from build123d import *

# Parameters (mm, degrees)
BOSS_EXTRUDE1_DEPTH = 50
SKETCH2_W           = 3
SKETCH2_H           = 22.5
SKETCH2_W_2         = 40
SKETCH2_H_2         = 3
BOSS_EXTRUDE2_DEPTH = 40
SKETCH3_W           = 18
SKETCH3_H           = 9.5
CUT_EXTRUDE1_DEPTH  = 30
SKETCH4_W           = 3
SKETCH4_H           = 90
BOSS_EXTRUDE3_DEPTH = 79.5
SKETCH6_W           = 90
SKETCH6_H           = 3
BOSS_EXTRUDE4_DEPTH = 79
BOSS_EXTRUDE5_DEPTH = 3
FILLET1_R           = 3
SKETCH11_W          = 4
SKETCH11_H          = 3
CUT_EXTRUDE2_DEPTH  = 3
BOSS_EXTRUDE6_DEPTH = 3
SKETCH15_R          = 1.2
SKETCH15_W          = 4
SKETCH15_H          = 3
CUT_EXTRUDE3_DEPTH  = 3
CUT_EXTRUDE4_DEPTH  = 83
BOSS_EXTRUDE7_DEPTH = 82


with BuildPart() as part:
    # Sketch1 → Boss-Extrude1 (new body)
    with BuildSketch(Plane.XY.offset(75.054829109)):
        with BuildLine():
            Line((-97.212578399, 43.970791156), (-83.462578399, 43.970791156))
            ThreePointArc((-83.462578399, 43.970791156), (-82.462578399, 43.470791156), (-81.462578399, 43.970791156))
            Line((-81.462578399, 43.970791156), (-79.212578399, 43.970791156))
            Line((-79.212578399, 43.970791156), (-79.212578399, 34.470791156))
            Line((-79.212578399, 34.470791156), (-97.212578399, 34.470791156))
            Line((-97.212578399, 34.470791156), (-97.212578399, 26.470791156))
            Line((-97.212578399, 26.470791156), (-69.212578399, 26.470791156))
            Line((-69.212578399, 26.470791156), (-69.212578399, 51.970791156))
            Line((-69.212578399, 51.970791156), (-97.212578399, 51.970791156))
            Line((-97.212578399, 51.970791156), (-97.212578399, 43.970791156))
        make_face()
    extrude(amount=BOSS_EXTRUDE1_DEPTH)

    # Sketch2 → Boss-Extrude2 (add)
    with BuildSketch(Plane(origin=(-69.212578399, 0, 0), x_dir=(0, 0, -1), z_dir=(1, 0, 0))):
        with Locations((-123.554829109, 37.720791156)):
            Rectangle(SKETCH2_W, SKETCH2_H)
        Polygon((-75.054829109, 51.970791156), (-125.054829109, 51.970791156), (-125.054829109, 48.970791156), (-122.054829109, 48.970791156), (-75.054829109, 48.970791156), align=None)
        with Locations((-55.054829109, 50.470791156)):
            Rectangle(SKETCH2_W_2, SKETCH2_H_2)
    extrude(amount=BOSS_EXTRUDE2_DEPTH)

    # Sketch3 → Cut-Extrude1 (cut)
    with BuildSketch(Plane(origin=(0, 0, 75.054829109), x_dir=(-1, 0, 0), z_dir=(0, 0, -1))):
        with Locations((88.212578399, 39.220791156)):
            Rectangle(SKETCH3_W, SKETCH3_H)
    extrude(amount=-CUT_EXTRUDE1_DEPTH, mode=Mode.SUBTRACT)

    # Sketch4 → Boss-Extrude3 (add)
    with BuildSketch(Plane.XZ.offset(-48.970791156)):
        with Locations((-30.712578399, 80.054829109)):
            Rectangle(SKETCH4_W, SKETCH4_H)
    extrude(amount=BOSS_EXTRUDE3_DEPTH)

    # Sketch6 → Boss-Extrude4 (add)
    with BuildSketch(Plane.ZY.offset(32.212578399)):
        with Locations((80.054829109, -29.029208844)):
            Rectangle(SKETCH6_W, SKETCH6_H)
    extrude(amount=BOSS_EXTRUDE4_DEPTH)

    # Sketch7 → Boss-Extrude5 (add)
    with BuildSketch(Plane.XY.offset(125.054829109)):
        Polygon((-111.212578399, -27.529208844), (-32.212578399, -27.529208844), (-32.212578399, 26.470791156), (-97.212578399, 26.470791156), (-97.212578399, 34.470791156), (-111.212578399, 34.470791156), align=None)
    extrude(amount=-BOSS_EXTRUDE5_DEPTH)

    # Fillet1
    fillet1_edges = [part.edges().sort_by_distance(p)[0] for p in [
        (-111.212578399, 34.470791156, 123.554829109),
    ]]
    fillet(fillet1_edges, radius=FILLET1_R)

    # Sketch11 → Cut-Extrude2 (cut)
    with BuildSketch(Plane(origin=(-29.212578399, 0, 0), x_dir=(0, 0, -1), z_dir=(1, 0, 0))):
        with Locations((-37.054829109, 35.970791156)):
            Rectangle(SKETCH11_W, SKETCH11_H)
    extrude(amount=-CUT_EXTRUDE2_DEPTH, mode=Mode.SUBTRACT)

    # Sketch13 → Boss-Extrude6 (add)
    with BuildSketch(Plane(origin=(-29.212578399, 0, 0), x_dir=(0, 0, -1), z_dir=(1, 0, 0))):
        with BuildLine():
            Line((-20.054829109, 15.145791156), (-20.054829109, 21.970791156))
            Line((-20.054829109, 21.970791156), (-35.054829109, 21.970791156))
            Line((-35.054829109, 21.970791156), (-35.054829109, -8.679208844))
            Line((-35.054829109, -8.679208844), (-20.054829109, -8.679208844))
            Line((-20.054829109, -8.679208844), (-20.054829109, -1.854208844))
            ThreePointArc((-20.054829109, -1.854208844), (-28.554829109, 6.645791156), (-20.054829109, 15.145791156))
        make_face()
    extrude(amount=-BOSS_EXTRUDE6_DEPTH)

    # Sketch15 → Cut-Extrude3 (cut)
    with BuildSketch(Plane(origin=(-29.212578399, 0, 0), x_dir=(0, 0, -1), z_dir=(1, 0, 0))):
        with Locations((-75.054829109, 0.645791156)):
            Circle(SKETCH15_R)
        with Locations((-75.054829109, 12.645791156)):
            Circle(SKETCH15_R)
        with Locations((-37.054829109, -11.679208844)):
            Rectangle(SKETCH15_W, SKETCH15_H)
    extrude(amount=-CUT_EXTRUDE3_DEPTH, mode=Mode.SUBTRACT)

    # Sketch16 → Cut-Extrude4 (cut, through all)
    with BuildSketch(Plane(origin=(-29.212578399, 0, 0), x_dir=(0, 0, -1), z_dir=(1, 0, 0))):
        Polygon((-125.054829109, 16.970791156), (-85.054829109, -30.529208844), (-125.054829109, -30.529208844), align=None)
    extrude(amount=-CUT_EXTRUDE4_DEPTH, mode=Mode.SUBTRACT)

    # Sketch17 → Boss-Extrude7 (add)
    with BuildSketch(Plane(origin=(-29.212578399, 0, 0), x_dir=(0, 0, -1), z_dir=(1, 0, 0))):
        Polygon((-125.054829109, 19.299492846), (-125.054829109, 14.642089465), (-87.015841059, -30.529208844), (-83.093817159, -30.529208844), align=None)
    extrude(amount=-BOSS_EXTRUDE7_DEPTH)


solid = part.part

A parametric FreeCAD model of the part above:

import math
import FreeCAD as App
import Part
import Sketcher
Q = App.Units.Quantity


def edges_at(feature, points):
    """Names of the edges that pass closest to the given points."""
    edges = feature.Shape.Edges
    near = lambda p: min(range(len(edges)), key=lambda i: edges[i].distToShape(Part.Vertex(*p))[0])
    return sorted({f"Edge{near(p) + 1}" for p in points})


def add_polygon(sketch, points):
    """Adds a closed chain of lines whose ends are joined by coincident constraints."""
    first, n = sketch.GeometryCount, len(points)
    for a, b in zip(points, points[1:] + points[:1]):
        sketch.addGeometry(Part.LineSegment(App.Vector(*a, 0), App.Vector(*b, 0)), False)
    for i in range(n):
        sketch.addConstraint(Sketcher.Constraint("Coincident", first + i, 2, first + (i + 1) % n, 1))

doc = App.newDocument("Part")
body = doc.addObject("PartDesign::Body", "Body")

# Sketch on XY plane
sketch1 = body.newObject("Sketcher::SketchObject", "Sketch")
sketch1.AttachmentSupport = (doc.getObject("XY_Plane"), [""])
sketch1.MapMode = "FlatFace"
sketch1.AttachmentOffset = App.Placement(App.Vector(0, 0, 75.054829), App.Rotation())
sketch1.addGeometry([
    Part.LineSegment(App.Vector(-97.2, 44, 0), App.Vector(-83.5, 44, 0)),  # 0
    Part.ArcOfCircle(Part.Circle(App.Vector(-82.5, 44.7, 0), App.Vector(0, 0, 1), 1.2), math.radians(-143), math.radians(-37)),  # 1
    Part.LineSegment(App.Vector(-81.5, 44, 0), App.Vector(-79.2, 44, 0)),  # 2
    Part.LineSegment(App.Vector(-79.2, 44, 0), App.Vector(-79.2, 34.5, 0)),  # 3
    Part.LineSegment(App.Vector(-79.2, 34.5, 0), App.Vector(-97.2, 34.5, 0)),  # 4
    Part.LineSegment(App.Vector(-97.2, 34.5, 0), App.Vector(-97.2, 26.5, 0)),  # 5
    Part.LineSegment(App.Vector(-97.2, 26.5, 0), App.Vector(-69.2, 26.5, 0)),  # 6
    Part.LineSegment(App.Vector(-69.2, 26.5, 0), App.Vector(-69.2, 52, 0)),  # 7
    Part.LineSegment(App.Vector(-69.2, 52, 0), App.Vector(-97.2, 52, 0)),  # 8
    Part.LineSegment(App.Vector(-97.2, 52, 0), App.Vector(-97.2, 44, 0)),  # 9
], False)
sketch1.addConstraint([
    Sketcher.Constraint("Coincident", 0, 2, 1, 1),
    Sketcher.Constraint("Coincident", 1, 2, 2, 1),
    Sketcher.Constraint("Coincident", 2, 2, 3, 1),
    Sketcher.Constraint("Coincident", 3, 2, 4, 1),
    Sketcher.Constraint("Coincident", 4, 2, 5, 1),
    Sketcher.Constraint("Coincident", 5, 2, 6, 1),
    Sketcher.Constraint("Coincident", 6, 2, 7, 1),
    Sketcher.Constraint("Coincident", 7, 2, 8, 1),
    Sketcher.Constraint("Coincident", 8, 2, 9, 1),
    Sketcher.Constraint("Coincident", 9, 2, 0, 1),
    Sketcher.Constraint("Horizontal", 0),
    Sketcher.Constraint("Horizontal", 2),
    Sketcher.Constraint("Vertical", 3),
    Sketcher.Constraint("Horizontal", 4),
    Sketcher.Constraint("Vertical", 5),
    Sketcher.Constraint("Horizontal", 6),
    Sketcher.Constraint("Vertical", 7),
    Sketcher.Constraint("Horizontal", 8),
    Sketcher.Constraint("Vertical", 9),
    Sketcher.Constraint("Horizontal", 0, 2, 1, 2),
    Sketcher.Constraint("Vertical", 5, 2, 8, 2),
    Sketcher.Constraint("Equal", 5, 9),
    Sketcher.Constraint("DistanceX", 4, 2, 4, 1, Q("18 mm")),
    Sketcher.Constraint("DistanceX", 6, 1, 6, 2, Q("28 mm")),
    Sketcher.Constraint("DistanceY", 5, 2, 5, 1, Q("8 mm")),
    Sketcher.Constraint("Radius", 1, Q("1.25 mm")),
    Sketcher.Constraint("DistanceY", 3, 2, 3, 1, Q("9.5 mm")),
    Sketcher.Constraint("DistanceX", 0, 2, 1, 3, Q("1 mm")),
    Sketcher.Constraint("DistanceX", 0, 1, 0, 2, Q("13.75 mm")),
    Sketcher.Constraint("DistanceX", 1, 3, -1, 1, Q("82.462578 mm")),
    Sketcher.Constraint("DistanceY", -1, 1, 1, 3, Q("44.720791 mm")),
])
pad1 = body.newObject("PartDesign::Pad", "Pad")
pad1.Profile = sketch1
pad1.Length = 50

# Sketch on YZ plane
sketch2 = body.newObject("Sketcher::SketchObject", "Sketch001")
sketch2.AttachmentSupport = (doc.getObject("YZ_Plane"), [""])
sketch2.MapMode = "FlatFace"
sketch2.AttachmentOffset = App.Placement(App.Vector(0, 0, -69.212578), App.Rotation())
add_polygon(sketch2, [(26.5, 125.1), (26.5, 122.1), (49, 122.1), (49, 35.1), (52, 35.1), (52, 125.1)])  # lines 0-5
sketch2.addConstraint([
    Sketcher.Constraint("Vertical", 0),
    Sketcher.Constraint("Horizontal", 1),
    Sketcher.Constraint("Vertical", 2),
    Sketcher.Constraint("Horizontal", 3),
    Sketcher.Constraint("Vertical", 4),
    Sketcher.Constraint("Horizontal", 5),
    Sketcher.Constraint("Equal", 3, 0),
    Sketcher.Constraint("DistanceX", 3, 1, 3, 2, Q("3 mm")),
    Sketcher.Constraint("DistanceY", 2, 2, 2, 1, Q("87 mm")),
    Sketcher.Constraint("DistanceX", 1, 1, 1, 2, Q("22.5 mm")),
    Sketcher.Constraint("DistanceX", -1, 1, 0, 2, Q("26.470791 mm")),
    Sketcher.Constraint("DistanceY", -1, 1, 0, 2, Q("122.054829 mm")),
])
pad2 = body.newObject("PartDesign::Pad", "Pad001")
pad2.Profile = sketch2
pad2.Length = 40

# Sketch on XY plane
sketch3 = body.newObject("Sketcher::SketchObject", "Sketch002")
sketch3.AttachmentSupport = (doc.getObject("XY_Plane"), [""])
sketch3.MapMode = "FlatFace"
sketch3.AttachmentOffset = App.Placement(App.Vector(0, 0, 75.054829), App.Rotation())
add_polygon(sketch3, [(-79, 44), (-79, 34), (-97, 34), (-97, 44)])  # lines 0-3
sketch3.addConstraint([
    Sketcher.Constraint("Vertical", 0),
    Sketcher.Constraint("Horizontal", 1),
    Sketcher.Constraint("Vertical", 2),
    Sketcher.Constraint("Horizontal", 3),
    Sketcher.Constraint("DistanceX", 1, 2, 1, 1, Q("18 mm")),
    Sketcher.Constraint("DistanceY", 0, 2, 0, 1, Q("9.5 mm")),
    Sketcher.Constraint("DistanceX", 0, 2, -1, 1, Q("79.212578 mm")),
    Sketcher.Constraint("DistanceY", -1, 1, 0, 2, Q("34.470791 mm")),
])
pocket1 = body.newObject("PartDesign::Pocket", "Pocket")
pocket1.Profile = sketch3
pocket1.Length = 30
pocket1.Reversed = True

# Sketch on XZ plane
sketch4 = body.newObject("Sketcher::SketchObject", "Sketch003")
sketch4.AttachmentSupport = (doc.getObject("XZ_Plane"), [""])
sketch4.MapMode = "FlatFace"
sketch4.AttachmentOffset = App.Placement(App.Vector(0, 0, -48.970791), App.Rotation())
add_polygon(sketch4, [(-32.2, 125.1), (-32.2, 35.1), (-29.2, 35.1), (-29.2, 125.1)])  # lines 0-3
sketch4.addConstraint([
    Sketcher.Constraint("Vertical", 0),
    Sketcher.Constraint("Horizontal", 1),
    Sketcher.Constraint("Vertical", 2),
    Sketcher.Constraint("Horizontal", 3),
    Sketcher.Constraint("DistanceX", 1, 1, 1, 2, Q("3 mm")),
    Sketcher.Constraint("DistanceY", 0, 2, 0, 1, Q("90 mm")),
    Sketcher.Constraint("DistanceX", 0, 2, -1, 1, Q("32.212578 mm")),
    Sketcher.Constraint("DistanceY", -1, 1, 0, 2, Q("35.054829 mm")),
])
pad3 = body.newObject("PartDesign::Pad", "Pad002")
pad3.Profile = sketch4
pad3.Length = 79.5

# Sketch on YZ plane
sketch5 = body.newObject("Sketcher::SketchObject", "Sketch004")
sketch5.AttachmentSupport = (doc.getObject("YZ_Plane"), [""])
sketch5.MapMode = "FlatFace"
sketch5.AttachmentOffset = App.Placement(App.Vector(0, 0, -32.212578), App.Rotation())
add_polygon(sketch5, [(-27.5, 35.1), (-30.5, 35.1), (-30.5, 125.1), (-27.5, 125.1)])  # lines 0-3
sketch5.addConstraint([
    Sketcher.Constraint("Horizontal", 0),
    Sketcher.Constraint("Vertical", 1),
    Sketcher.Constraint("Horizontal", 2),
    Sketcher.Constraint("Vertical", 3),
    Sketcher.Constraint("DistanceX", 0, 2, 0, 1, Q("3 mm")),
    Sketcher.Constraint("DistanceY", 1, 1, 1, 2, Q("90 mm")),
    Sketcher.Constraint("DistanceX", 0, 2, -1, 1, Q("30.529209 mm")),
    Sketcher.Constraint("DistanceY", -1, 1, 0, 2, Q("35.054829 mm")),
])
pad4 = body.newObject("PartDesign::Pad", "Pad003")
pad4.Profile = sketch5
pad4.Length = 79
pad4.Reversed = True

# Sketch on XY plane
sketch6 = body.newObject("Sketcher::SketchObject", "Sketch005")
sketch6.AttachmentSupport = (doc.getObject("XY_Plane"), [""])
sketch6.MapMode = "FlatFace"
sketch6.AttachmentOffset = App.Placement(App.Vector(0, 0, 125.054829), App.Rotation())
add_polygon(sketch6, [(-111, -28), (-32, -28), (-32, 26), (-97, 26), (-97, 34), (-111, 34)])  # lines 0-5
sketch6.addConstraint([
    Sketcher.Constraint("Horizontal", 0),
    Sketcher.Constraint("Vertical", 1),
    Sketcher.Constraint("Horizontal", 2),
    Sketcher.Constraint("Vertical", 3),
    Sketcher.Constraint("Horizontal", 4),
    Sketcher.Constraint("Vertical", 5),
    Sketcher.Constraint("DistanceX", 0, 1, 0, 2, Q("79 mm")),
    Sketcher.Constraint("DistanceX", 2, 2, 2, 1, Q("65 mm")),
    Sketcher.Constraint("DistanceY", 1, 1, 1, 2, Q("54 mm")),
    Sketcher.Constraint("DistanceY", 3, 1, 3, 2, Q("8 mm")),
    Sketcher.Constraint("DistanceX", 0, 2, -1, 1, Q("32.212578 mm")),
    Sketcher.Constraint("DistanceY", 0, 2, -1, 1, Q("27.529209 mm")),
])
pad5 = body.newObject("PartDesign::Pad", "Pad004")
pad5.Profile = sketch6
pad5.Length = 3
pad5.Reversed = True
doc.recompute()

fillet = body.newObject("PartDesign::Fillet", "Fillet")
fillet.Base = (pad5, edges_at(pad5, [(-111.213, 34.471, 123.555)]))
fillet.Radius = 3

# Sketch on YZ plane
sketch7 = body.newObject("Sketcher::SketchObject", "Sketch006")
sketch7.AttachmentSupport = (doc.getObject("YZ_Plane"), [""])
sketch7.MapMode = "FlatFace"
sketch7.AttachmentOffset = App.Placement(App.Vector(0, 0, -29.212578), App.Rotation())
add_polygon(sketch7, [(37.5, 39.1), (34.5, 39.1), (34.5, 35.1), (37.5, 35.1)])  # lines 0-3
sketch7.addConstraint([
    Sketcher.Constraint("Horizontal", 0),
    Sketcher.Constraint("Vertical", 1),
    Sketcher.Constraint("Horizontal", 2),
    Sketcher.Constraint("Vertical", 3),
    Sketcher.Constraint("DistanceX", 0, 2, 0, 1, Q("3 mm")),
    Sketcher.Constraint("DistanceY", 1, 2, 1, 1, Q("4 mm")),
    Sketcher.Constraint("DistanceX", -1, 1, 0, 2, Q("34.470791 mm")),
    Sketcher.Constraint("DistanceY", -1, 1, 0, 2, Q("39.054829 mm")),
])
pocket2 = body.newObject("PartDesign::Pocket", "Pocket001")
pocket2.Profile = sketch7
pocket2.Length = 3

# Sketch on YZ plane
sketch8 = body.newObject("Sketcher::SketchObject", "Sketch007")
sketch8.AttachmentSupport = (doc.getObject("YZ_Plane"), [""])
sketch8.MapMode = "FlatFace"
sketch8.AttachmentOffset = App.Placement(App.Vector(0, 0, -29.212578), App.Rotation())
sketch8.addGeometry([
    Part.LineSegment(App.Vector(15, 20, 0), App.Vector(22, 20, 0)),  # 0
    Part.LineSegment(App.Vector(22, 20, 0), App.Vector(22, 35, 0)),  # 1
    Part.LineSegment(App.Vector(22, 35, 0), App.Vector(-9, 35, 0)),  # 2
    Part.LineSegment(App.Vector(-9, 35, 0), App.Vector(-9, 20, 0)),  # 3
    Part.LineSegment(App.Vector(-9, 20, 0), App.Vector(-2, 20, 0)),  # 4
    Part.ArcOfCircle(Part.Circle(App.Vector(7, 20, 0), App.Vector(0, 0, 1), 8), math.radians(0), math.radians(180)),  # 5
], False)
sketch8.addConstraint([
    Sketcher.Constraint("Coincident", 0, 2, 1, 1),
    Sketcher.Constraint("Coincident", 1, 2, 2, 1),
    Sketcher.Constraint("Coincident", 2, 2, 3, 1),
    Sketcher.Constraint("Coincident", 3, 2, 4, 1),
    Sketcher.Constraint("Coincident", 4, 2, 5, 2),
    Sketcher.Constraint("Coincident", 5, 1, 0, 1),
    Sketcher.Constraint("Horizontal", 0),
    Sketcher.Constraint("Vertical", 1),
    Sketcher.Constraint("Horizontal", 2),
    Sketcher.Constraint("Vertical", 3),
    Sketcher.Constraint("Horizontal", 4),
    Sketcher.Constraint("Horizontal", 5, 3, 0, 2),
    Sketcher.Constraint("Horizontal", 0, 2, 3, 2),
    Sketcher.Constraint("Equal", 0, 4),
    Sketcher.Constraint("Radius", 5, Q("8.5 mm")),
    Sketcher.Constraint("DistanceY", 1, 1, 1, 2, Q("15 mm")),
    Sketcher.Constraint("DistanceX", 2, 2, 2, 1, Q("30.65 mm")),
    Sketcher.Constraint("DistanceX", -1, 1, 5, 3, Q("6.645791 mm")),
    Sketcher.Constraint("DistanceY", -1, 1, 5, 3, Q("20.054829 mm")),
])
pad6 = body.newObject("PartDesign::Pad", "Pad005")
pad6.Profile = sketch8
pad6.Length = 3
pad6.Reversed = True

# Sketch on YZ plane
sketch9 = body.newObject("Sketcher::SketchObject", "Sketch008")
sketch9.AttachmentSupport = (doc.getObject("YZ_Plane"), [""])
sketch9.MapMode = "FlatFace"
sketch9.AttachmentOffset = App.Placement(App.Vector(0, 0, -29.212578), App.Rotation())
sketch9.addGeometry(Part.Circle(App.Vector(0.6, 75.1, 0), App.Vector(0, 0, 1), 1.2), False)  # 0
sketch9.addGeometry(Part.Circle(App.Vector(12.6, 75.1, 0), App.Vector(0, 0, 1), 1.2), False)  # 1
add_polygon(sketch9, [(-10.2, 39.1), (-13.2, 39.1), (-13.2, 35.1), (-10.2, 35.1)])  # lines 2-5
sketch9.addConstraint([
    Sketcher.Constraint("Horizontal", 2),
    Sketcher.Constraint("Vertical", 3),
    Sketcher.Constraint("Horizontal", 4),
    Sketcher.Constraint("Vertical", 5),
    Sketcher.Constraint("Equal", 0, 1),
    Sketcher.Constraint("Horizontal", 0, 3, 1, 3),
    Sketcher.Constraint("Diameter", 0, Q("2.4 mm")),
    Sketcher.Constraint("DistanceX", 2, 2, 2, 1, Q("3 mm")),
    Sketcher.Constraint("DistanceY", 3, 2, 3, 1, Q("4 mm")),
    Sketcher.Constraint("DistanceX", 0, 3, 1, 3, Q("12 mm")),
    Sketcher.Constraint("DistanceY", 2, 2, 0, 3, Q("36 mm")),
    Sketcher.Constraint("DistanceX", 2, 2, 0, 3, Q("13.825 mm")),
    Sketcher.Constraint("DistanceX", -1, 1, 0, 3, Q("0.645791 mm")),
    Sketcher.Constraint("DistanceY", -1, 1, 0, 3, Q("75.054829 mm")),
])
pocket3 = body.newObject("PartDesign::Pocket", "Pocket002")
pocket3.Profile = sketch9
pocket3.Length = 3

# Sketch on YZ plane
sketch10 = body.newObject("Sketcher::SketchObject", "Sketch009")
sketch10.AttachmentSupport = (doc.getObject("YZ_Plane"), [""])
sketch10.MapMode = "FlatFace"
sketch10.AttachmentOffset = App.Placement(App.Vector(0, 0, -29.212578), App.Rotation())
add_polygon(sketch10, [(-31, 85), (17, 125), (-31, 125)])  # lines 0-2
sketch10.addConstraint([
    Sketcher.Constraint("Horizontal", 1),
    Sketcher.Constraint("Vertical", 2),
    Sketcher.Constraint("DistanceY", 2, 2, 2, 1, Q("40 mm")),
    Sketcher.Constraint("DistanceX", 1, 2, 1, 1, Q("47.5 mm")),
    Sketcher.Constraint("DistanceX", -1, 1, 0, 2, Q("16.970791 mm")),
    Sketcher.Constraint("DistanceY", -1, 1, 0, 2, Q("125.054829 mm")),
])
pocket4 = body.newObject("PartDesign::Pocket", "Pocket003")
pocket4.Profile = sketch10
pocket4.Type = "ThroughAll"

# Sketch on YZ plane
sketch11 = body.newObject("Sketcher::SketchObject", "Sketch010")
sketch11.AttachmentSupport = (doc.getObject("YZ_Plane"), [""])
sketch11.MapMode = "FlatFace"
sketch11.AttachmentOffset = App.Placement(App.Vector(0, 0, -29.212578), App.Rotation())
add_polygon(sketch11, [(19.3, 125.1), (14.6, 125.1), (-30.5, 87), (-30.5, 83.1)])  # lines 0-3
sketch11.addConstraint([
    Sketcher.Constraint("Horizontal", 0),
    Sketcher.Constraint("Vertical", 2),
    Sketcher.Constraint("Parallel", 1, 3),
    Sketcher.Constraint("DistanceX", 1, 2, 0, 2, Q("45.171298 mm")),
    Sketcher.Constraint("DistanceX", 1, 2, 3, 2, Q("49.828702 mm")),
    Sketcher.Constraint("Distance", 3, Q("65.14312 mm")),
    Sketcher.Constraint("DistanceX", -1, 1, 0, 2, Q("14.642089 mm")),
    Sketcher.Constraint("DistanceY", -1, 1, 0, 2, Q("125.054829 mm")),
])
pad7 = body.newObject("PartDesign::Pad", "Pad006")
pad7.Profile = sketch11
pad7.Length = 82
pad7.Reversed = True

doc.recompute()
